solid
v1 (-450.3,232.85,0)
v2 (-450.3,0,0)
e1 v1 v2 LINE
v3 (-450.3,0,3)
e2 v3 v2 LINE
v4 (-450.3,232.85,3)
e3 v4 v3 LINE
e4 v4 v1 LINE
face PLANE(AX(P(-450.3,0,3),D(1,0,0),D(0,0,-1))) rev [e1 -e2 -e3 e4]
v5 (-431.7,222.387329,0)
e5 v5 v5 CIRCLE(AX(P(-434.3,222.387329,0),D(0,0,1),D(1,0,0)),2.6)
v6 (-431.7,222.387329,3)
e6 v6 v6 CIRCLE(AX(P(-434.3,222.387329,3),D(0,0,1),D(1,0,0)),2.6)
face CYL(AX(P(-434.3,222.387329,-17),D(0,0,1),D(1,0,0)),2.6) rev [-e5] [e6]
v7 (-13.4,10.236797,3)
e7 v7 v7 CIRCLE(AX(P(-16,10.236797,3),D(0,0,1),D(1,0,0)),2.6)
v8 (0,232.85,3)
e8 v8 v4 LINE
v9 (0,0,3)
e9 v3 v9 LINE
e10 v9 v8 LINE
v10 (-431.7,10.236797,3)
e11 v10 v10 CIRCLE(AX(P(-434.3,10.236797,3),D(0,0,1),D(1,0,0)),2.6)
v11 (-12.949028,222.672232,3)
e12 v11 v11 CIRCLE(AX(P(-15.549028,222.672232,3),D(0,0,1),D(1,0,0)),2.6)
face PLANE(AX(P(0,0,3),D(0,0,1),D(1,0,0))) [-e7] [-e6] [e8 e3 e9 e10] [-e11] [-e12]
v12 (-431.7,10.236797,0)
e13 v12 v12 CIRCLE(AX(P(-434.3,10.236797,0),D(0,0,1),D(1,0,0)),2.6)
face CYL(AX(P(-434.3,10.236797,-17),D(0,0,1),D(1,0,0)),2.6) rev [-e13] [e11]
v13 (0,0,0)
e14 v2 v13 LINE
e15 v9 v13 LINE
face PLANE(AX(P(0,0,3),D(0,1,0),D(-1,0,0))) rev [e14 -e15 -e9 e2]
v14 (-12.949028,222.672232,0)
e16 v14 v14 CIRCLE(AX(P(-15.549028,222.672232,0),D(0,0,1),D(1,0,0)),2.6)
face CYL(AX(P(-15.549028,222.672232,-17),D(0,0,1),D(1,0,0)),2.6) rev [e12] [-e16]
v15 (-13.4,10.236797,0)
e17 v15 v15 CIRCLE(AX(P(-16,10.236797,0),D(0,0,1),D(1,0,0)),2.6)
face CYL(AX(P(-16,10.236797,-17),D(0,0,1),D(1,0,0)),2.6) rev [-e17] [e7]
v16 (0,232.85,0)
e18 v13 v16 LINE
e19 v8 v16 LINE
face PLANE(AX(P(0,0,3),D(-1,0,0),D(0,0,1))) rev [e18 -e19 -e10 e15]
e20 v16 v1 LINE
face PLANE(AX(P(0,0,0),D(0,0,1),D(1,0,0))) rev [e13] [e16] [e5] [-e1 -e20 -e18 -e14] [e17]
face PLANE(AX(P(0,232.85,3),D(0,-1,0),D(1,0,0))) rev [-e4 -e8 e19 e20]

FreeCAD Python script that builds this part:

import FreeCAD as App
import Part
import Sketcher


def add_polygon(sketch, points):
    """Adds a closed chain of lines whose ends are joined by coincident constraints."""
    first, n = sketch.GeometryCount, len(points)
    for a, b in zip(points, points[1:] + points[:1]):
        sketch.addGeometry(Part.LineSegment(App.Vector(*a, 0), App.Vector(*b, 0)), False)
    for i in range(n):
        sketch.addConstraint(Sketcher.Constraint("Coincident", first + i, 2, first + (i + 1) % n, 1))

doc = App.newDocument("Part")
body = doc.addObject("PartDesign::Body", "Body")

# Sketch on XY plane
sketch1 = doc.addObject("Sketcher::SketchObject", "Sketch")
body.addObject(sketch1)
sketch1.AttachmentSupport = (doc.XY_Plane, [""])
sketch1.MapMode = "FlatFace"
add_polygon(sketch1, [(-450, 233), (-450, 0), (0, 0), (0, 233)])  # lines 0-3
sketch1.addConstraint(Sketcher.Constraint("Vertical", 0))
sketch1.addConstraint(Sketcher.Constraint("Horizontal", 1))
sketch1.addConstraint(Sketcher.Constraint("Vertical", 2))
sketch1.addConstraint(Sketcher.Constraint("Horizontal", 3))
sketch1.addConstraint(Sketcher.Constraint("Coincident", 1, 2, -1, 1))
sketch1.addConstraint(Sketcher.Constraint("DistanceX", 1, 1, 1, 2, 450.3))
sketch1.addConstraint(Sketcher.Constraint("DistanceY", 0, 2, 0, 1, 232.85))
pad1 = doc.addObject("PartDesign::Pad", "Pad")
body.addObject(pad1)
pad1.Profile = sketch1
pad1.Length = 3

# Sketch on XY plane
sketch2 = doc.addObject("Sketcher::SketchObject", "Sketch001")
body.addObject(sketch2)
sketch2.AttachmentSupport = (doc.XY_Plane, [""])
sketch2.MapMode = "FlatFace"
sketch2.AttachmentOffset = App.Placement(App.Vector(0, 0, 3), App.Rotation())
sketch2.addGeometry(Part.Circle(App.Vector(-434.3, 10.2, 0), App.Vector(0, 0, 1), 2.6), False)
sketch2.addGeometry(Part.Circle(App.Vector(-16, 10.2, 0), App.Vector(0, 0, 1), 2.6), False)
sketch2.addGeometry(Part.Circle(App.Vector(-15.5, 222.7, 0), App.Vector(0, 0, 1), 2.6), False)
sketch2.addGeometry(Part.Circle(App.Vector(-434.3, 222.4, 0), App.Vector(0, 0, 1), 2.6), False)
sketch2.addConstraint(Sketcher.Constraint("Equal", 0, 1))
sketch2.addConstraint(Sketcher.Constraint("Equal", 1, 2))
sketch2.addConstraint(Sketcher.Constraint("Equal", 2, 3))
sketch2.addConstraint(Sketcher.Constraint("Horizontal", 0, 3, 1, 3))
sketch2.addConstraint(Sketcher.Constraint("Vertical", 0, 3, 3, 3))
sketch2.addConstraint(Sketcher.Constraint("Diameter", 0, 5.2))
sketch2.addConstraint(Sketcher.Constraint("DistanceX", 1, 3, -1, 1, 16.0))
sketch2.addConstraint(Sketcher.Constraint("DistanceX", 0, 3, -1, 1, 434.3))
sketch2.addConstraint(Sketcher.Constraint("DistanceX", 2, 3, -1, 1, 15.549028))
sketch2.addConstraint(Sketcher.Constraint("DistanceY", -1, 1, 2, 3, 222.672232))
sketch2.addConstraint(Sketcher.Constraint("DistanceY", -1, 1, 3, 3, 222.387329))
sketch2.addConstraint(Sketcher.Constraint("DistanceY", 0, 3, 3, 3, 212.150531))
pocket1 = doc.addObject("PartDesign::Pocket", "Pocket")
body.addObject(pocket1)
pocket1.Profile = sketch2
pocket1.Length = 20

doc.recompute()
